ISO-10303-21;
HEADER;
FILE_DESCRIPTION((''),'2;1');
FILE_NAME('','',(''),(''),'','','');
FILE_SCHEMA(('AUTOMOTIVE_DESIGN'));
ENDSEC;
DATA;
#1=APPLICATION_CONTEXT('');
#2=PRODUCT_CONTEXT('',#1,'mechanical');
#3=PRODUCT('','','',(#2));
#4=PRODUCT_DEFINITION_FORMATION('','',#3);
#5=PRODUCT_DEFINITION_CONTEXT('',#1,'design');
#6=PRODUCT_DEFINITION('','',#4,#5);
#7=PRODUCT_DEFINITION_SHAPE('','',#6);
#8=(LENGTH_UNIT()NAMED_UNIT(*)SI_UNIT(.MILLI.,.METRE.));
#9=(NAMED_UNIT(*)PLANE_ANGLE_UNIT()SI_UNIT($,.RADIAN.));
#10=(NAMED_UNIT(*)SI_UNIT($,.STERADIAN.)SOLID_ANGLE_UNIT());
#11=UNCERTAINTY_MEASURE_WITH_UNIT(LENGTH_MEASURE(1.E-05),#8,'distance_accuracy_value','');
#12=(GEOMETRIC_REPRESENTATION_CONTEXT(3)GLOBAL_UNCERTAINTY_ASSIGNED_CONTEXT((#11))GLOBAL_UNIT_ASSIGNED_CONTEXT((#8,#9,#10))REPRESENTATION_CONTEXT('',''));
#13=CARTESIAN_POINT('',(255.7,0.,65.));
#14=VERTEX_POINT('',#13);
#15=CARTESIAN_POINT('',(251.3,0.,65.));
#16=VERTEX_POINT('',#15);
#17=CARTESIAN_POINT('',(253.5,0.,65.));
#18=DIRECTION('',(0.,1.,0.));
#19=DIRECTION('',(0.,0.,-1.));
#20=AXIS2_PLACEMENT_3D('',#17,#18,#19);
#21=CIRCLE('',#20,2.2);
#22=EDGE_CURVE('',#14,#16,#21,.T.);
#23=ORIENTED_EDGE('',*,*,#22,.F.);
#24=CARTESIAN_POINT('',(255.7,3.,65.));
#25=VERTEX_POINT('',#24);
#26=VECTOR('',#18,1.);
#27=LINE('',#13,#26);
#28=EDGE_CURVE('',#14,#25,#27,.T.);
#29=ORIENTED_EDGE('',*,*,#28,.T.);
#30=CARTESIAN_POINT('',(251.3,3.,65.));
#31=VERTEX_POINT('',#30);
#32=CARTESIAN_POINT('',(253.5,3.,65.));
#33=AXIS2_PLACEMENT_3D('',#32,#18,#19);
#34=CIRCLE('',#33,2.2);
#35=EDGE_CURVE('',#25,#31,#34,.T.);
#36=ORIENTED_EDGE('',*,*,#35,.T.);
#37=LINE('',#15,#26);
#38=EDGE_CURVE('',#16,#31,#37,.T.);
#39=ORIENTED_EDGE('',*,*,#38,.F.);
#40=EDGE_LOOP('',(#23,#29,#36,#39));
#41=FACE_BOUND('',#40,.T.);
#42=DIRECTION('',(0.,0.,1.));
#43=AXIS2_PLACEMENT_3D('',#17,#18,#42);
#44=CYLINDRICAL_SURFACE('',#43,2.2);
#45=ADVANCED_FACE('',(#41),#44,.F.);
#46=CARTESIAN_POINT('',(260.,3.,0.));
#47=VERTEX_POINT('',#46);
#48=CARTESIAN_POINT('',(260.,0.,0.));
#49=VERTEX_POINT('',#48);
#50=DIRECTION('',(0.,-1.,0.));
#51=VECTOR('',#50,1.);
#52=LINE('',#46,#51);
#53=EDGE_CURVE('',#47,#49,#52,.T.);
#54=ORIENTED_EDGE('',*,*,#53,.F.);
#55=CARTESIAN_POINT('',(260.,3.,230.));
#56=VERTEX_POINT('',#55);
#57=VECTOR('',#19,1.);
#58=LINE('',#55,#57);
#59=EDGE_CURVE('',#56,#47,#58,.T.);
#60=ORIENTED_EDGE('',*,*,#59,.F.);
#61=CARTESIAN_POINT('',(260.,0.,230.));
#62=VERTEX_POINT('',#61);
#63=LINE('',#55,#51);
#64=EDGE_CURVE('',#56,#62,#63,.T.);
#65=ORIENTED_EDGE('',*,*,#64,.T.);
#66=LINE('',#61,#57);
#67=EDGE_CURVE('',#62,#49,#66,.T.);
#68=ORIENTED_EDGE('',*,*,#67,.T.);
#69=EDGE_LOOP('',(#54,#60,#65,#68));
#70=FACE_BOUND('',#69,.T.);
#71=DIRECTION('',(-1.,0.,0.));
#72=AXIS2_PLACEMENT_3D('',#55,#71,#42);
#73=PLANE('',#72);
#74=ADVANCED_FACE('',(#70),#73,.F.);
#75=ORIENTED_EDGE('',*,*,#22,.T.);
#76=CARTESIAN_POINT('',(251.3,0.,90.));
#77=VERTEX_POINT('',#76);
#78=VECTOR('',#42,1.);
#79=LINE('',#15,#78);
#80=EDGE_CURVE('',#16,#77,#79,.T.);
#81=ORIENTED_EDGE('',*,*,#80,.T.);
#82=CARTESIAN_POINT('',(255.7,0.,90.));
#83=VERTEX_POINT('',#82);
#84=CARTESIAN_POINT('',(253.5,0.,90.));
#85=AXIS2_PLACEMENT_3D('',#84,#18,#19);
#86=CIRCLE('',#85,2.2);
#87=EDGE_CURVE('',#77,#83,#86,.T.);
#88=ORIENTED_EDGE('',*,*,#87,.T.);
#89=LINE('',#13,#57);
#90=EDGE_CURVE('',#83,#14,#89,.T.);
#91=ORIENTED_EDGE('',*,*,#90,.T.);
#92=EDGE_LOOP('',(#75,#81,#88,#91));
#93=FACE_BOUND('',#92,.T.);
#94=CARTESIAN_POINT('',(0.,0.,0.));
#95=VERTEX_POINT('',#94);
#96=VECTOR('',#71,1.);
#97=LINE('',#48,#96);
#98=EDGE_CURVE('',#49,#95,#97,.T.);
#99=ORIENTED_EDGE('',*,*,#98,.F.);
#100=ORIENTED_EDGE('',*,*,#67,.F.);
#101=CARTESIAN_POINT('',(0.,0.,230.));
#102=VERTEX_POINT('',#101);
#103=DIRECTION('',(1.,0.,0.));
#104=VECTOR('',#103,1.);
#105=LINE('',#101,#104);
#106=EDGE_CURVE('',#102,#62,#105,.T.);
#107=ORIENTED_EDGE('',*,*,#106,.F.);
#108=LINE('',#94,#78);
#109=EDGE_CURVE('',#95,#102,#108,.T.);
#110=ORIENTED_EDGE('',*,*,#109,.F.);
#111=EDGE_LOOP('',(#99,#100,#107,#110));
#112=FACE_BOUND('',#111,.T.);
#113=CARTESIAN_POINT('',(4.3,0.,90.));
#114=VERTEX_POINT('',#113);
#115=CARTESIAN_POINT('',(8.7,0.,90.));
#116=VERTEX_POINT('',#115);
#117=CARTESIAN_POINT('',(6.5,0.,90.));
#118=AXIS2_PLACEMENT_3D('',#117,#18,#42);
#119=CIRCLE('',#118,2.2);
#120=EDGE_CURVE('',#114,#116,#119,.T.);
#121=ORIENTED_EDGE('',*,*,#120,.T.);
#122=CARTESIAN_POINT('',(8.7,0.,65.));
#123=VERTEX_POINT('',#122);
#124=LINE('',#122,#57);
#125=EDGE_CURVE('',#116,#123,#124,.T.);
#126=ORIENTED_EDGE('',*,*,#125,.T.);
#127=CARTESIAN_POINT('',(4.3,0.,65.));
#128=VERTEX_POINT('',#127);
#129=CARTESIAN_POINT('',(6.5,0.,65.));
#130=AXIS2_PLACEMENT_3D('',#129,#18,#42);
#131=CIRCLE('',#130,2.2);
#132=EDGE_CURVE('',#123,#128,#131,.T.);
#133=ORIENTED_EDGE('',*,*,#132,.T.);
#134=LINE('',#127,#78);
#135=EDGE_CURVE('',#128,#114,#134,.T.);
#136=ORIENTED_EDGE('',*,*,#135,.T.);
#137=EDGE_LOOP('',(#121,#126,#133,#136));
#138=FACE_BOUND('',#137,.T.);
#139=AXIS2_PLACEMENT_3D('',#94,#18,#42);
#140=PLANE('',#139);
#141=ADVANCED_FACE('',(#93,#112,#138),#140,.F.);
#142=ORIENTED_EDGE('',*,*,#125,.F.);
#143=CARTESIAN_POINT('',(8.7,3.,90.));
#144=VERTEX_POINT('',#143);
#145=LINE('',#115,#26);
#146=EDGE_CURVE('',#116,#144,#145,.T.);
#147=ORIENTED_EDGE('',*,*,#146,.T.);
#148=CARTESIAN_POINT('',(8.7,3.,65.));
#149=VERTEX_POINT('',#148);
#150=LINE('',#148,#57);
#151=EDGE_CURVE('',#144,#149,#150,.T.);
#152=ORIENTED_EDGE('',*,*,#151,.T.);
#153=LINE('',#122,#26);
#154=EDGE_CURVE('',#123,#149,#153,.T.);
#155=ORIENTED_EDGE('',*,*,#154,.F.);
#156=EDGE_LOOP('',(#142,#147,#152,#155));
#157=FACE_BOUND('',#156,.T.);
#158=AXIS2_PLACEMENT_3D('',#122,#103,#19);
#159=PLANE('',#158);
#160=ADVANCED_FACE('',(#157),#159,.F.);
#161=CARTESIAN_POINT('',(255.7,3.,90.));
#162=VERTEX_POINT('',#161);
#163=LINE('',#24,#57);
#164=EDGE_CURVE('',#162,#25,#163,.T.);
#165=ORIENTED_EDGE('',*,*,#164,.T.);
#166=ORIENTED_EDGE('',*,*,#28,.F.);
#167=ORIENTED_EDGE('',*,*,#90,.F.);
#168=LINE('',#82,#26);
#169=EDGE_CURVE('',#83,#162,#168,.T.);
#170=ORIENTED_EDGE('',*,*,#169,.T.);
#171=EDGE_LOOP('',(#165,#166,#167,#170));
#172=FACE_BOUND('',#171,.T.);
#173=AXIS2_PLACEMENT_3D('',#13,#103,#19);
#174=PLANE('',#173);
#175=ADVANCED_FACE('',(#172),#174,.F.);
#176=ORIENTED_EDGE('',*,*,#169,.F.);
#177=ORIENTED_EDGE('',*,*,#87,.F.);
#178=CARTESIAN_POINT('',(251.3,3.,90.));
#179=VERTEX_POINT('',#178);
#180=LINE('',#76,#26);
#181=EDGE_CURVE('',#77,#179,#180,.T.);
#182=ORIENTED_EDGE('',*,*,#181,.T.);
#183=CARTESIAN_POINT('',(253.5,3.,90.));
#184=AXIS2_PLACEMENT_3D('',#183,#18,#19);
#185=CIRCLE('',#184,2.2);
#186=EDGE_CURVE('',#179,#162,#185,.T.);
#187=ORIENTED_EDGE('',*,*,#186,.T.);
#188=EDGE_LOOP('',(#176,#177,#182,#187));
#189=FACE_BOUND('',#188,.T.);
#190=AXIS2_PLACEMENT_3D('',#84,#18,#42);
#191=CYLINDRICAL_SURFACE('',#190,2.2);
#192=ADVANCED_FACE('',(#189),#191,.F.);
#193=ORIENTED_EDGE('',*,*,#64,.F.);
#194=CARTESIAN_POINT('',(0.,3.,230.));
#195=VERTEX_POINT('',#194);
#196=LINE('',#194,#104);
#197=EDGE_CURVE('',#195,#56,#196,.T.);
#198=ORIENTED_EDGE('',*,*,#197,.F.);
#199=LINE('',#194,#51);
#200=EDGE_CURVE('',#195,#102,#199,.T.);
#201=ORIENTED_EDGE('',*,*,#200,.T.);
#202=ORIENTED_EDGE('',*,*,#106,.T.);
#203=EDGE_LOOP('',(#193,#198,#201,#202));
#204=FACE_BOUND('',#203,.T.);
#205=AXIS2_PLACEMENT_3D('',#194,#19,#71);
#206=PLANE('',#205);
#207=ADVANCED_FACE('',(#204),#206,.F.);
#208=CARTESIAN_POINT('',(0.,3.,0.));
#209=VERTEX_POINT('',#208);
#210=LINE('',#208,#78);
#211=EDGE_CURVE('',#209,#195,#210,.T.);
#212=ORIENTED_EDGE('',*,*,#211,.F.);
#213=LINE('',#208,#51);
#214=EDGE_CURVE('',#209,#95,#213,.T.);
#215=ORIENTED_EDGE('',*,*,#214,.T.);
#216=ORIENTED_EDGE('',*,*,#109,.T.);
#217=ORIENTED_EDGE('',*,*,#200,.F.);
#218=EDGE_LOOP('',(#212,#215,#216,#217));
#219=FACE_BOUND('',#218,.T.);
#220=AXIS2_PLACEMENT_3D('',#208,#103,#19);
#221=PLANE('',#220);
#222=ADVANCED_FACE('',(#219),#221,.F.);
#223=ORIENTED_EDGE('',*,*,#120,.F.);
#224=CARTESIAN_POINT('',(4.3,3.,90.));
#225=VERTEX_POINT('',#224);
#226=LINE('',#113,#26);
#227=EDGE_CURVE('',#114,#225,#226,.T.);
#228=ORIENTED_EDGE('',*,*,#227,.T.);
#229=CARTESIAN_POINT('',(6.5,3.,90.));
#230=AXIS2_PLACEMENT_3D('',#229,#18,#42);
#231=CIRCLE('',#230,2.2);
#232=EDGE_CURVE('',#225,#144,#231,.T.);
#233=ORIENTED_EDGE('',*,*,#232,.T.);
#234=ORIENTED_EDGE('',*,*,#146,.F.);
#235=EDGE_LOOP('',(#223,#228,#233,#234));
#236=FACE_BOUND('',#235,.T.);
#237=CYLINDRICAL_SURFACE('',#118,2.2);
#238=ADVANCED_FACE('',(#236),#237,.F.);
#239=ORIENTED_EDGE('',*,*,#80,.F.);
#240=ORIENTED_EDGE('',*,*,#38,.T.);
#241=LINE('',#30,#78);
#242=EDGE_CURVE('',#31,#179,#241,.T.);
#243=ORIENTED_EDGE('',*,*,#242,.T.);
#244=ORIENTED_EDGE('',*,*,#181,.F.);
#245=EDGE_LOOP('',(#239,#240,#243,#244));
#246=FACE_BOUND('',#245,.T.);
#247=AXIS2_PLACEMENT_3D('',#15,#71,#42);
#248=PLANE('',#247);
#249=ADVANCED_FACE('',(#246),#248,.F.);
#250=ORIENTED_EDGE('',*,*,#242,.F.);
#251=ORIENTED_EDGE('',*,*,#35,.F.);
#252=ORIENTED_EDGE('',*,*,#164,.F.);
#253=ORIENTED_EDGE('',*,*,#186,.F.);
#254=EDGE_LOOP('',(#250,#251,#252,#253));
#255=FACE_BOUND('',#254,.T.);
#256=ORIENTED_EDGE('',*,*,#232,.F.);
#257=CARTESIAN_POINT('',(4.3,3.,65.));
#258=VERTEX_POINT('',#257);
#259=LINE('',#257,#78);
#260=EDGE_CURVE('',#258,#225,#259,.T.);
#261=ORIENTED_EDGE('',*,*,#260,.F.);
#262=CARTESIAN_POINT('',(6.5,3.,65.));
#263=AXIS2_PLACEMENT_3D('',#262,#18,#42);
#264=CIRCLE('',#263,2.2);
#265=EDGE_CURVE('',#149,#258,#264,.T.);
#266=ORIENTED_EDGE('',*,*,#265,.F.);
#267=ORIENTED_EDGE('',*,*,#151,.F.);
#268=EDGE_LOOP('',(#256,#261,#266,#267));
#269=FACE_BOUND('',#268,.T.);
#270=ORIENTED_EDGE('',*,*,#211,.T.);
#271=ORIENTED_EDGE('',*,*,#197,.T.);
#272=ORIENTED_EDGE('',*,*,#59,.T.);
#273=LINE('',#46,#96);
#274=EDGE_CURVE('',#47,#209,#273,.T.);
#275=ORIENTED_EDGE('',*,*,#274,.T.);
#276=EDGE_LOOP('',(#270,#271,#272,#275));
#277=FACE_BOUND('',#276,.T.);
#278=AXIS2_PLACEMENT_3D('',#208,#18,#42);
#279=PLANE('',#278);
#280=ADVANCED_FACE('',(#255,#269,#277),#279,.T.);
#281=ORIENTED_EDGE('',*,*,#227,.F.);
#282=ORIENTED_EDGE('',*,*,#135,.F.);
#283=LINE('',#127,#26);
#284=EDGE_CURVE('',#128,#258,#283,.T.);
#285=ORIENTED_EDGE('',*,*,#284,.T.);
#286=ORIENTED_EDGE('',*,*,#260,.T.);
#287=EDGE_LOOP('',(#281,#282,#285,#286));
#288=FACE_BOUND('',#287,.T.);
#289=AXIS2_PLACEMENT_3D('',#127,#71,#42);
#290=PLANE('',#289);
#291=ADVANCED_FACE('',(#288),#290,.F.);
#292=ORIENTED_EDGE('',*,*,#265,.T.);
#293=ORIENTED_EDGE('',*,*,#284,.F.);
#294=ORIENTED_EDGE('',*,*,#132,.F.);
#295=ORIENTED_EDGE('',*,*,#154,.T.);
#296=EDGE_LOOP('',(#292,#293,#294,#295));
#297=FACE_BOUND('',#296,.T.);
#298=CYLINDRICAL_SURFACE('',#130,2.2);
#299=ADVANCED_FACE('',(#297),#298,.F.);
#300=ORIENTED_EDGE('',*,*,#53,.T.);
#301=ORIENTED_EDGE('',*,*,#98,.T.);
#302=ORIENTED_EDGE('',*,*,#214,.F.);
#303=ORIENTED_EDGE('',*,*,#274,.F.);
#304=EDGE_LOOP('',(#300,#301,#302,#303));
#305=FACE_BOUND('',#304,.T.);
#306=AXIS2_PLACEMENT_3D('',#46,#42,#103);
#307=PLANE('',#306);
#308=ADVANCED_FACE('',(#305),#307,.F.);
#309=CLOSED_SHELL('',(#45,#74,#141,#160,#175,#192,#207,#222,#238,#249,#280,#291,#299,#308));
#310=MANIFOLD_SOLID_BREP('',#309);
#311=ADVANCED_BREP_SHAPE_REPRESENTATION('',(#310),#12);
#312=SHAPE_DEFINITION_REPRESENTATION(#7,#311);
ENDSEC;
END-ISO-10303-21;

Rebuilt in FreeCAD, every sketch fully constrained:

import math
import FreeCAD as App
import Part
import Sketcher
from FreeCAD import Vector


def add_polygon(sketch, points):
    """Adds a closed chain of lines whose ends are joined by coincident constraints."""
    first, n = sketch.GeometryCount, len(points)
    for a, b in zip(points, points[1:] + points[:1]):
        sketch.addGeometry(Part.LineSegment(App.Vector(*a, 0), App.Vector(*b, 0)), False)
    for i in range(n):
        sketch.addConstraint(Sketcher.Constraint("Coincident", first + i, 2, first + (i + 1) % n, 1))

doc = App.newDocument("Part")
body = doc.addObject("PartDesign::Body", "Body")

sketch1 = body.newObject("Sketcher::SketchObject", "Sketch")
sketch1.AttachmentSupport = (doc.getObject("XZ_Plane"), [""])
sketch1.MapMode = "FlatFace"
add_polygon(sketch1, [(0, 0), (0, 230), (260, 230), (260, 0)])
sketch1.addConstraint(Sketcher.Constraint("Vertical", 0))
sketch1.addConstraint(Sketcher.Constraint("Horizontal", 1))
sketch1.addConstraint(Sketcher.Constraint("Vertical", 2))
sketch1.addConstraint(Sketcher.Constraint("Horizontal", 3))
sketch1.addConstraint(Sketcher.Constraint("Coincident", 3, 2, -1, 1))
sketch1.addConstraint(Sketcher.Constraint("DistanceX", 1, 1, 1, 2, 260.0))
sketch1.addConstraint(Sketcher.Constraint("DistanceY", 0, 1, 0, 2, 230.0))
pad1 = body.newObject("PartDesign::Pad", "Pad")
pad1.Profile = sketch1
pad1.Length = 3
pad1.Reversed = True

sketch2 = body.newObject("Sketcher::SketchObject", "Sketch001")
sketch2.AttachmentSupport = (doc.getObject("XZ_Plane"), [""])
sketch2.MapMode = "FlatFace"
sketch2.AttachmentOffset = App.Placement(Vector(0, 0, -3), App.Rotation())
sketch2.addGeometry(Part.LineSegment(Vector(8.7, 90, 0), Vector(8.7, 65, 0)), False)
sketch2.addGeometry(Part.ArcOfCircle(Part.Circle(Vector(6.5, 65, 0), Vector(0, 0, 1), 2.2), math.radians(180), math.radians(360)), False)
sketch2.addGeometry(Part.LineSegment(Vector(4.3, 65, 0), Vector(4.3, 90, 0)), False)
sketch2.addGeometry(Part.ArcOfCircle(Part.Circle(Vector(6.5, 90, 0), Vector(0, 0, 1), 2.2), math.radians(0), math.radians(180)), False)
sketch2.addGeometry(Part.LineSegment(Vector(251.3, 65, 0), Vector(251.3, 90, 0)), False)
sketch2.addGeometry(Part.ArcOfCircle(Part.Circle(Vector(253.5, 90, 0), Vector(0, 0, 1), 2.2), math.radians(0), math.radians(180)), False)
sketch2.addGeometry(Part.LineSegment(Vector(255.7, 90, 0), Vector(255.7, 65, 0)), False)
sketch2.addGeometry(Part.ArcOfCircle(Part.Circle(Vector(253.5, 65, 0), Vector(0, 0, 1), 2.2), math.radians(180), math.radians(360)), False)
sketch2.addConstraint(Sketcher.Constraint("Tangent", 0, 2, 1, 2))
sketch2.addConstraint(Sketcher.Constraint("Tangent", 1, 1, 2, 1))
sketch2.addConstraint(Sketcher.Constraint("Tangent", 2, 2, 3, 2))
sketch2.addConstraint(Sketcher.Constraint("Tangent", 3, 1, 0, 1))
sketch2.addConstraint(Sketcher.Constraint("Tangent", 4, 2, 5, 2))
sketch2.addConstraint(Sketcher.Constraint("Tangent", 5, 1, 6, 1))
sketch2.addConstraint(Sketcher.Constraint("Tangent", 6, 2, 7, 2))
sketch2.addConstraint(Sketcher.Constraint("Tangent", 7, 1, 4, 1))
sketch2.addConstraint(Sketcher.Constraint("Vertical", 0))
sketch2.addConstraint(Sketcher.Constraint("Vertical", 2))
sketch2.addConstraint(Sketcher.Constraint("Vertical", 4))
sketch2.addConstraint(Sketcher.Constraint("Vertical", 6))
sketch2.addConstraint(Sketcher.Constraint("Equal", 3, 5))
sketch2.addConstraint(Sketcher.Constraint("Horizontal", 3, 3, 5, 3))
sketch2.addConstraint(Sketcher.Constraint("Horizontal", 1, 3, 7, 3))
sketch2.addConstraint(Sketcher.Constraint("Radius", 1, 2.2))
sketch2.addConstraint(Sketcher.Constraint("DistanceY", 0, 2, 0, 1, 25.0))
sketch2.addConstraint(Sketcher.Constraint("DistanceY", -1, 1, 1, 3, 65.0))
sketch2.addConstraint(Sketcher.Constraint("DistanceX", 3, 3, 5, 3, 247.0))
sketch2.addConstraint(Sketcher.Constraint("DistanceX", -1, 1, 1, 3, 6.5))
pocket1 = body.newObject("PartDesign::Pocket", "Pocket")
pocket1.Profile = sketch2
pocket1.Type = "ThroughAll"
pocket1.Reversed = True

doc.recompute()
